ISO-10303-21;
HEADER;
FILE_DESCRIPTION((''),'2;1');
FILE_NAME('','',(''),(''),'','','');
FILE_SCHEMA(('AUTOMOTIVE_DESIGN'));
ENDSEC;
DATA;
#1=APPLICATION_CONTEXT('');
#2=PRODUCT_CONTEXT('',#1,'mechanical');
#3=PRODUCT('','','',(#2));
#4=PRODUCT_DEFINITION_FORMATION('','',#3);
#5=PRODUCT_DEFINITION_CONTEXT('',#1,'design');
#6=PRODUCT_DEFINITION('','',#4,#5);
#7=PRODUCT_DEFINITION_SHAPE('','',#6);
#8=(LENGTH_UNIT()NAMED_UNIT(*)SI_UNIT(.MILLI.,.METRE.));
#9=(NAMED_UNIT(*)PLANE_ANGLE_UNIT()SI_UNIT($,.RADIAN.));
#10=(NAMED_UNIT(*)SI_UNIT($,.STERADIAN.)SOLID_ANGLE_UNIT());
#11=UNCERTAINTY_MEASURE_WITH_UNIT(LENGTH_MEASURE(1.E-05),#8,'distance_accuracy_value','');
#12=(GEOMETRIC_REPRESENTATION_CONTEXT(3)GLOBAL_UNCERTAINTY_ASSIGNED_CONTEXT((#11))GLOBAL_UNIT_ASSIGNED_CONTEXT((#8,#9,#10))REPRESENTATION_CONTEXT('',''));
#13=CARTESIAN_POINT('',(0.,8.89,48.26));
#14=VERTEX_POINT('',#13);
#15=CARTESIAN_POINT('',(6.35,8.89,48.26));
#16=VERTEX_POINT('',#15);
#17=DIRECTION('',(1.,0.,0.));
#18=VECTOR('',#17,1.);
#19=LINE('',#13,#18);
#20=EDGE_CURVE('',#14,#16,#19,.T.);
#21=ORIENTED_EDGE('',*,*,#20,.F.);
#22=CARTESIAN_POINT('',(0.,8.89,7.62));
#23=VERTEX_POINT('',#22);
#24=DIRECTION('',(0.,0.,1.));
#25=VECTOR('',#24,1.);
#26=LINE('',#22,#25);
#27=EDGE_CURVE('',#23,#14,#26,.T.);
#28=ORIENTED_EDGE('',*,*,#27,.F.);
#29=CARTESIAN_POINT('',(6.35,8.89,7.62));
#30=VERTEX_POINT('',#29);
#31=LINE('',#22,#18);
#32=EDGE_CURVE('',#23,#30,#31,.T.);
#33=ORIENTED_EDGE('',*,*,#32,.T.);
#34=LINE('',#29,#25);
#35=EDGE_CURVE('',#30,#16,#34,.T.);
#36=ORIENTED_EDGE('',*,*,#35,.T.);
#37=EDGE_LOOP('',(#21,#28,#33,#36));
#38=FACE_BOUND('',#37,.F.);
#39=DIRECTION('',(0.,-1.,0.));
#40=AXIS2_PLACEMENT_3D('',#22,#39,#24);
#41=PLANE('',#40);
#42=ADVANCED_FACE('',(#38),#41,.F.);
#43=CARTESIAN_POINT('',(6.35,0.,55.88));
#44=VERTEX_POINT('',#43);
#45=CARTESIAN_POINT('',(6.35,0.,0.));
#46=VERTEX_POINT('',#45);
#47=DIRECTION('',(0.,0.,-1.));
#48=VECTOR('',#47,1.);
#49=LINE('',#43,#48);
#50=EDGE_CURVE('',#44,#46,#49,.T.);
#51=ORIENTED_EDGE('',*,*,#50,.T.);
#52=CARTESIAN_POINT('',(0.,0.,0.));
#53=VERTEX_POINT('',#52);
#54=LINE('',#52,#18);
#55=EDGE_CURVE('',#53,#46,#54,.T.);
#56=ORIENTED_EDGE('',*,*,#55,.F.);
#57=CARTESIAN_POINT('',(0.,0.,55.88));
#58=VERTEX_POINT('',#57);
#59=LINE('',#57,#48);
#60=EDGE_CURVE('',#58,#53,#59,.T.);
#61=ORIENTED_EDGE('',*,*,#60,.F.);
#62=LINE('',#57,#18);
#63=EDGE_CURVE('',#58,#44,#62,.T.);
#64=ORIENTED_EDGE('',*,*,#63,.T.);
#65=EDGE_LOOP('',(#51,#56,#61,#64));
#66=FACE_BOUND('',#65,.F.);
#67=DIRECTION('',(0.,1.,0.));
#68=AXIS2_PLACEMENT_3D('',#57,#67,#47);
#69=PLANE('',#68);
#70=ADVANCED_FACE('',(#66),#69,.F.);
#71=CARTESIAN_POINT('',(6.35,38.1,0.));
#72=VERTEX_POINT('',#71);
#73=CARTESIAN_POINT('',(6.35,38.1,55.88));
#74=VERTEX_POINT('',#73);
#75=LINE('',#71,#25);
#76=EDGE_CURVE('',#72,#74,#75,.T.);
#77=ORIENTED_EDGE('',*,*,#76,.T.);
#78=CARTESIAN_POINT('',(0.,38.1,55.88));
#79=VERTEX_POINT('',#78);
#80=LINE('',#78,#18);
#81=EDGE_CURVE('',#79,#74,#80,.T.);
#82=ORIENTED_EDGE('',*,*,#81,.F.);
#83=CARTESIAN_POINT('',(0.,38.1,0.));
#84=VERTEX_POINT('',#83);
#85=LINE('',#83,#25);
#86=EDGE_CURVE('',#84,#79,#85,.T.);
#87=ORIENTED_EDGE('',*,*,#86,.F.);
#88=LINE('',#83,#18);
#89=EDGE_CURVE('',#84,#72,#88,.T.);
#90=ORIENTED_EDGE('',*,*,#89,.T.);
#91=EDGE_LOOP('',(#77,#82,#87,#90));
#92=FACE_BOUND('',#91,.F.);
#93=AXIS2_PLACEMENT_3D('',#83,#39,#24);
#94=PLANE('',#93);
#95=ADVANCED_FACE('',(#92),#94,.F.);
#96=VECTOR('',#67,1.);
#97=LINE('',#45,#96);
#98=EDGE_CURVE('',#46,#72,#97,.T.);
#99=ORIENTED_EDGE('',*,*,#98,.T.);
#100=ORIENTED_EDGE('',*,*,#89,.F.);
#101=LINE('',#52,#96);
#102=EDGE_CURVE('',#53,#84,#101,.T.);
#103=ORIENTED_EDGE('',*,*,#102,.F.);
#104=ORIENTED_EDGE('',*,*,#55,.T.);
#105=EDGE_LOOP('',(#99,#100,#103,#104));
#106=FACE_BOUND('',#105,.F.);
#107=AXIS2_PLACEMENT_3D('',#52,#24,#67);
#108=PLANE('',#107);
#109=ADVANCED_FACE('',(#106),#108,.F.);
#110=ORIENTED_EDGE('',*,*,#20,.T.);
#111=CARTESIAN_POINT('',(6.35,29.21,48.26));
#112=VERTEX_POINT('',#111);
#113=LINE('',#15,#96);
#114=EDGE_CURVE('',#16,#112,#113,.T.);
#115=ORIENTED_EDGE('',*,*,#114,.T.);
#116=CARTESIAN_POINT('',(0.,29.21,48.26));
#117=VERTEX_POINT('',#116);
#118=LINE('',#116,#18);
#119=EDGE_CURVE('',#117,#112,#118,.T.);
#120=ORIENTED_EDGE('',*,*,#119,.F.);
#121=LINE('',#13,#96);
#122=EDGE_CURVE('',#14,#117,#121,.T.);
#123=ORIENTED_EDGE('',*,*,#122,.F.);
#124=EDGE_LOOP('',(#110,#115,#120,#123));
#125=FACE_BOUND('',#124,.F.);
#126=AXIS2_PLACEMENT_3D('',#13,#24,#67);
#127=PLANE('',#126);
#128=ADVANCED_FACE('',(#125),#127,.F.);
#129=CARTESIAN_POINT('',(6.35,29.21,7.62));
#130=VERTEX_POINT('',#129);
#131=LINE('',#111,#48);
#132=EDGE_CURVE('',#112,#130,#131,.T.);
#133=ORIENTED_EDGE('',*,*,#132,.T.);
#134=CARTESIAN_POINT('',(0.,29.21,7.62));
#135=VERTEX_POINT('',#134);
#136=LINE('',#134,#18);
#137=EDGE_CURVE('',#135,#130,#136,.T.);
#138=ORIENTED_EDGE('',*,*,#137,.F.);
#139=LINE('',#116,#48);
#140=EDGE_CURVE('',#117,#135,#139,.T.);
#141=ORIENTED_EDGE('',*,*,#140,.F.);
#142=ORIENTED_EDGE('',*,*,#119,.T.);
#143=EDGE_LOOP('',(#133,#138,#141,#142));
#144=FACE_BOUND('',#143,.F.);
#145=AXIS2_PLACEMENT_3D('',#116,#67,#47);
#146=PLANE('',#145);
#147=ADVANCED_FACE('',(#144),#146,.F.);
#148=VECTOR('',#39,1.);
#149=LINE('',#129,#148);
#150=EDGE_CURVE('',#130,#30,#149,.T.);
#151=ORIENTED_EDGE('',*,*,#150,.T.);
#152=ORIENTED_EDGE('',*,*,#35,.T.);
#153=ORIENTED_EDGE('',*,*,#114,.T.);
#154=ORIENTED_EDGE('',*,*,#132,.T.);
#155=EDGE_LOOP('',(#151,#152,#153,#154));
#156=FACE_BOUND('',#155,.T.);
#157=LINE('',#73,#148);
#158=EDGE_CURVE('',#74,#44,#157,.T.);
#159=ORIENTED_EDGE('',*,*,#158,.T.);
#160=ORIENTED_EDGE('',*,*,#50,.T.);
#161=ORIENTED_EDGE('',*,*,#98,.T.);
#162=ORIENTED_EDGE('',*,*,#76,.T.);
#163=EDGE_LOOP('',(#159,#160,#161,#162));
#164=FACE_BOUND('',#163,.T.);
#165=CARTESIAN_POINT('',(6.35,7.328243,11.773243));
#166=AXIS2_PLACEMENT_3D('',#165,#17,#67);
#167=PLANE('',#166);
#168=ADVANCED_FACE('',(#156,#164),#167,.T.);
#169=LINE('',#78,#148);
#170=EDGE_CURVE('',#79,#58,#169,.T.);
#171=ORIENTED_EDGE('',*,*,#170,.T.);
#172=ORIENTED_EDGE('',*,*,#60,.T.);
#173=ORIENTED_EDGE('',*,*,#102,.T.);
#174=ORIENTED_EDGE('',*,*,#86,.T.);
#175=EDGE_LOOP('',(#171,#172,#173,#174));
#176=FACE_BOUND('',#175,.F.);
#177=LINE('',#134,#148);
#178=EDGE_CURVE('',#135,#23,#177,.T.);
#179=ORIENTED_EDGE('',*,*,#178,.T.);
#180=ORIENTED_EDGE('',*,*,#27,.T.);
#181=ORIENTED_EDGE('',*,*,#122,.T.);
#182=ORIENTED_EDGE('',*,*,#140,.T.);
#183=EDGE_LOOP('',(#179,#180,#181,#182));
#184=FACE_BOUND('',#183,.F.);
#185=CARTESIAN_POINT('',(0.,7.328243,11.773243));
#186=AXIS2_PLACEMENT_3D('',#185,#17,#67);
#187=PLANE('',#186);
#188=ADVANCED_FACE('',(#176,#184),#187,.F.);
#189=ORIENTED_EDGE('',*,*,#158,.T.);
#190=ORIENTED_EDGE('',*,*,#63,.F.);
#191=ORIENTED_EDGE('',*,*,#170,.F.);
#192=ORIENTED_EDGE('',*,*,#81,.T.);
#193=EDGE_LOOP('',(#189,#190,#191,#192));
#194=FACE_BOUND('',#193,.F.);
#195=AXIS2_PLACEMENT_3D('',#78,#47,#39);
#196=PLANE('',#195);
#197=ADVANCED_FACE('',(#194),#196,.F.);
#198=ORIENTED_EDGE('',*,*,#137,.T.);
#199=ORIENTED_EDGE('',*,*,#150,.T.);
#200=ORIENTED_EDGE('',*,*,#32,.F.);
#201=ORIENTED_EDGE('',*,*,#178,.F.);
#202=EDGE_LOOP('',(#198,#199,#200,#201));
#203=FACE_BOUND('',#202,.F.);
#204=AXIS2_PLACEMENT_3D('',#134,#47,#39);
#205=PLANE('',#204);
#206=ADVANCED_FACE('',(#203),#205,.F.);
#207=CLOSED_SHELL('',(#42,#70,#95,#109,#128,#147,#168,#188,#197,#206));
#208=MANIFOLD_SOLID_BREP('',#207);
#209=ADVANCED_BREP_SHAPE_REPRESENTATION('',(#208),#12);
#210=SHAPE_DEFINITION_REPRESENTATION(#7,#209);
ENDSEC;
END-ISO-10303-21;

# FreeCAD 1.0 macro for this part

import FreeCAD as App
import Part
import Sketcher
from FreeCAD import Vector
Q = App.Units.Quantity

doc = App.newDocument("Part")
body = doc.addObject("PartDesign::Body", "Body")

# Sketch on YZ plane
sketch1 = body.newObject("Sketcher::SketchObject", "Sketch")
sketch1.AttachmentSupport = (doc.getObject("YZ_Plane"), [""])
sketch1.MapMode = "FlatFace"
sketch1.addGeometry([
    Part.LineSegment(Vector(0, 0, 0), Vector(38, 0, 0)),  # 0
    Part.LineSegment(Vector(38, 0, 0), Vector(38, 56, 0)),  # 1
    Part.LineSegment(Vector(38, 56, 0), Vector(0, 56, 0)),  # 2
    Part.LineSegment(Vector(0, 56, 0), Vector(0, 0, 0)),  # 3
    Part.LineSegment(Vector(29, 48, 0), Vector(29, 8, 0)),  # 4
    Part.LineSegment(Vector(29, 8, 0), Vector(9, 8, 0)),  # 5
    Part.LineSegment(Vector(9, 8, 0), Vector(9, 48, 0)),  # 6
    Part.LineSegment(Vector(9, 48, 0), Vector(29, 48, 0)),  # 7
], False)
sketch1.addConstraint([
    Sketcher.Constraint("Coincident", 0, 2, 1, 1),
    Sketcher.Constraint("Coincident", 1, 2, 2, 1),
    Sketcher.Constraint("Coincident", 2, 2, 3, 1),
    Sketcher.Constraint("Coincident", 3, 2, 0, 1),
    Sketcher.Constraint("Coincident", 4, 2, 5, 1),
    Sketcher.Constraint("Coincident", 5, 2, 6, 1),
    Sketcher.Constraint("Coincident", 6, 2, 7, 1),
    Sketcher.Constraint("Coincident", 7, 2, 4, 1),
    Sketcher.Constraint("Horizontal", 0),
    Sketcher.Constraint("Vertical", 1),
    Sketcher.Constraint("Horizontal", 2),
    Sketcher.Constraint("Vertical", 3),
    Sketcher.Constraint("Vertical", 4),
    Sketcher.Constraint("Horizontal", 5),
    Sketcher.Constraint("Vertical", 6),
    Sketcher.Constraint("Horizontal", 7),
    Sketcher.Constraint("Coincident", 3, 2, -1, 1),
    Sketcher.Constraint("DistanceX", 0, 1, 0, 2, Q("1.5 in")),
    Sketcher.Constraint("DistanceX", 5, 2, 5, 1, Q("0.8 in")),
    Sketcher.Constraint("DistanceY", 1, 1, 1, 2, Q("2.2 in")),
    Sketcher.Constraint("DistanceY", 4, 2, 4, 1, Q("1.6 in")),
    Sketcher.Constraint("DistanceY", -1, 1, 4, 2, Q("0.3 in")),
    Sketcher.Constraint("DistanceX", -1, 1, 4, 2, Q("1.15 in")),
])
pad1 = body.newObject("PartDesign::Pad", "Pad")
pad1.Profile = sketch1
pad1.Length = Q("0.25 in")

doc.recompute()
